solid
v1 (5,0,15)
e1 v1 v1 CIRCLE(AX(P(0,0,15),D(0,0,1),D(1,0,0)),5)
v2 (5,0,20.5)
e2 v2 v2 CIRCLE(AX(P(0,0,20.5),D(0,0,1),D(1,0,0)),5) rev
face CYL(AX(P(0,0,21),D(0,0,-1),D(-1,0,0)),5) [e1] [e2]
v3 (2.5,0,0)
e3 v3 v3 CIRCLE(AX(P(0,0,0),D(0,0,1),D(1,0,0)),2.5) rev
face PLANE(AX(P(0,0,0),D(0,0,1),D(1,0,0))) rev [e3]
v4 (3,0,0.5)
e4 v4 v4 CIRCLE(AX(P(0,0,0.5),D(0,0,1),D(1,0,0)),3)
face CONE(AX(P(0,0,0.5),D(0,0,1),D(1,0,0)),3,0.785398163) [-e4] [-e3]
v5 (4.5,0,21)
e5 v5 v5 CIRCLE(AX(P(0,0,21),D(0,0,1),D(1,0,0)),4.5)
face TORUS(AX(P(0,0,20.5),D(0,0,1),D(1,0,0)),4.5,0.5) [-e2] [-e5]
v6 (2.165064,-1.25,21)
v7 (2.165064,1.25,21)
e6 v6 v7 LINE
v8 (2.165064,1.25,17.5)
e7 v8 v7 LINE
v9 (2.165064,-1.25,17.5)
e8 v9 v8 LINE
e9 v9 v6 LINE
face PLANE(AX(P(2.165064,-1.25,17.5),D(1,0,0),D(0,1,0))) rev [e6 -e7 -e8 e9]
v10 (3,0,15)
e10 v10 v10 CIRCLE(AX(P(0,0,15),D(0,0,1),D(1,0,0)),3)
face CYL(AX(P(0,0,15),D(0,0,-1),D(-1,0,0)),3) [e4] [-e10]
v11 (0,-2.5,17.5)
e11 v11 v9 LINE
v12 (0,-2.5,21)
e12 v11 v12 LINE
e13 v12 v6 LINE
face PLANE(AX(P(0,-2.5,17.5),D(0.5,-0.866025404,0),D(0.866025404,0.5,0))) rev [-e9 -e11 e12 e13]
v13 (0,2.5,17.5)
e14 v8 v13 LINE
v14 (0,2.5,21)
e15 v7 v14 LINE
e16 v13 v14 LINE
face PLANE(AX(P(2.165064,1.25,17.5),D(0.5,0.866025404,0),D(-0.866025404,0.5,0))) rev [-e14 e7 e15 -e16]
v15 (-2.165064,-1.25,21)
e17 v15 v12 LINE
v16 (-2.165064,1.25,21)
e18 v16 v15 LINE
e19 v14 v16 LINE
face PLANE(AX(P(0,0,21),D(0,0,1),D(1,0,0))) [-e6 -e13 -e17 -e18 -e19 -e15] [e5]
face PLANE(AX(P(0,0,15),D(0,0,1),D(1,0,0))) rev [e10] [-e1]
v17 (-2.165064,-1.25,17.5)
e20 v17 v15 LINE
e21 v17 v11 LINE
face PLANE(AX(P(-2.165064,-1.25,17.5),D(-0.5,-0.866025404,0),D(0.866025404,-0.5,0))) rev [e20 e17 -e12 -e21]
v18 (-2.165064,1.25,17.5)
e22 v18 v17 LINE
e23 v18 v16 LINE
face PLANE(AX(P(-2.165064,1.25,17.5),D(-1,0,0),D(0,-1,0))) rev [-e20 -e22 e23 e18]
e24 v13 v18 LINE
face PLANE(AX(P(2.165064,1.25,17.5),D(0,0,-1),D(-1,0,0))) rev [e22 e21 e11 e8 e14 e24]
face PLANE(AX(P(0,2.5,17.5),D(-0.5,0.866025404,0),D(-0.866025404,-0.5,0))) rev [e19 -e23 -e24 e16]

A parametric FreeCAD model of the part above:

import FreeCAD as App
import Part
import Sketcher
from FreeCAD import Vector
Q = App.Units.Quantity


def edges_at(feature, points):
    """Names of the edges that pass closest to the given points."""
    edges = feature.Shape.Edges
    near = lambda p: min(range(len(edges)), key=lambda i: edges[i].distToShape(Part.Vertex(*p))[0])
    return sorted({f"Edge{near(p) + 1}" for p in points})


def add_polygon(sketch, points):
    """Adds a closed chain of lines whose ends are joined by coincident constraints."""
    first, n = sketch.GeometryCount, len(points)
    for a, b in zip(points, points[1:] + points[:1]):
        sketch.addGeometry(Part.LineSegment(App.Vector(*a, 0), App.Vector(*b, 0)), False)
    for i in range(n):
        sketch.addConstraint(Sketcher.Constraint("Coincident", first + i, 2, first + (i + 1) % n, 1))

doc = App.newDocument("Part")
body = doc.addObject("PartDesign::Body", "Body")

# Sketch on XY plane
sketch1 = body.newObject("Sketcher::SketchObject", "Sketch")
sketch1.AttachmentSupport = (doc.getObject("XY_Plane"), [""])
sketch1.MapMode = "FlatFace"
sketch1.addGeometry(Part.Circle(Vector(0, 0, 0), Vector(0, 0, 1), 3), False)
sketch1.addConstraint([
    Sketcher.Constraint("Coincident", 0, 3, -1, 1),
    Sketcher.Constraint("Diameter", 0, Q("6 mm")),
])
pad1 = body.newObject("PartDesign::Pad", "Pad")
pad1.Profile = sketch1
pad1.Length = 21
doc.recompute()

chamfer = body.newObject("PartDesign::Chamfer", "Chamfer")
chamfer.Base = (pad1, edges_at(pad1, [(-3, 0, 0)]))
chamfer.Size = 0.5

# Sketch on XY plane
sketch2 = body.newObject("Sketcher::SketchObject", "Sketch001")
sketch2.AttachmentSupport = (doc.getObject("XY_Plane"), [""])
sketch2.MapMode = "FlatFace"
sketch2.AttachmentOffset = App.Placement(Vector(0, 0, 15), App.Rotation())
sketch2.addGeometry(Part.Circle(Vector(0, 0, 0), Vector(0, 0, 1), 5), False)
sketch2.addConstraint([
    Sketcher.Constraint("Coincident", 0, 3, -1, 1),
    Sketcher.Constraint("Diameter", 0, Q("10 mm")),
])
pad2 = body.newObject("PartDesign::Pad", "Pad001")
pad2.Profile = sketch2
pad2.Length = 6

# Sketch on XY plane
sketch3 = body.newObject("Sketcher::SketchObject", "Sketch002")
sketch3.AttachmentSupport = (doc.getObject("XY_Plane"), [""])
sketch3.MapMode = "FlatFace"
sketch3.AttachmentOffset = App.Placement(Vector(0, 0, 21), App.Rotation())
add_polygon(sketch3, [(0, 2.5), (-2.2, 1.2), (-2.2, -1.2), (0, -2.5), (2.2, -1.2), (2.2, 1.2)])  # lines 0-5
sketch3.addConstraint([
    Sketcher.Constraint("Vertical", 1),
    Sketcher.Constraint("Vertical", 4),
    Sketcher.Constraint("Symmetric", 0, 2, 3, 2, -1, 1),
    Sketcher.Constraint("Symmetric", 2, 2, 5, 2, -1, 1),
    Sketcher.Constraint("PointOnObject", 2, 2, -2),
    Sketcher.Constraint("Parallel", 2, 5),
    Sketcher.Constraint("Horizontal", 1, 2, 3, 2),
    Sketcher.Constraint("Angle", 0, Q("-150 deg")),
    Sketcher.Constraint("DistanceY", 1, 2, 1, 1, Q("2.5 mm")),
    Sketcher.Constraint("DistanceY", 2, 2, 5, 2, Q("5 mm")),
])
pocket1 = body.newObject("PartDesign::Pocket", "Pocket")
pocket1.Profile = sketch3
pocket1.Length = 3.5
doc.recompute()

fillet = body.newObject("PartDesign::Fillet", "Fillet")
fillet.Base = (pocket1, edges_at(pocket1, [(-5, 0, 21)]))
fillet.Radius = 0.5

doc.recompute()
